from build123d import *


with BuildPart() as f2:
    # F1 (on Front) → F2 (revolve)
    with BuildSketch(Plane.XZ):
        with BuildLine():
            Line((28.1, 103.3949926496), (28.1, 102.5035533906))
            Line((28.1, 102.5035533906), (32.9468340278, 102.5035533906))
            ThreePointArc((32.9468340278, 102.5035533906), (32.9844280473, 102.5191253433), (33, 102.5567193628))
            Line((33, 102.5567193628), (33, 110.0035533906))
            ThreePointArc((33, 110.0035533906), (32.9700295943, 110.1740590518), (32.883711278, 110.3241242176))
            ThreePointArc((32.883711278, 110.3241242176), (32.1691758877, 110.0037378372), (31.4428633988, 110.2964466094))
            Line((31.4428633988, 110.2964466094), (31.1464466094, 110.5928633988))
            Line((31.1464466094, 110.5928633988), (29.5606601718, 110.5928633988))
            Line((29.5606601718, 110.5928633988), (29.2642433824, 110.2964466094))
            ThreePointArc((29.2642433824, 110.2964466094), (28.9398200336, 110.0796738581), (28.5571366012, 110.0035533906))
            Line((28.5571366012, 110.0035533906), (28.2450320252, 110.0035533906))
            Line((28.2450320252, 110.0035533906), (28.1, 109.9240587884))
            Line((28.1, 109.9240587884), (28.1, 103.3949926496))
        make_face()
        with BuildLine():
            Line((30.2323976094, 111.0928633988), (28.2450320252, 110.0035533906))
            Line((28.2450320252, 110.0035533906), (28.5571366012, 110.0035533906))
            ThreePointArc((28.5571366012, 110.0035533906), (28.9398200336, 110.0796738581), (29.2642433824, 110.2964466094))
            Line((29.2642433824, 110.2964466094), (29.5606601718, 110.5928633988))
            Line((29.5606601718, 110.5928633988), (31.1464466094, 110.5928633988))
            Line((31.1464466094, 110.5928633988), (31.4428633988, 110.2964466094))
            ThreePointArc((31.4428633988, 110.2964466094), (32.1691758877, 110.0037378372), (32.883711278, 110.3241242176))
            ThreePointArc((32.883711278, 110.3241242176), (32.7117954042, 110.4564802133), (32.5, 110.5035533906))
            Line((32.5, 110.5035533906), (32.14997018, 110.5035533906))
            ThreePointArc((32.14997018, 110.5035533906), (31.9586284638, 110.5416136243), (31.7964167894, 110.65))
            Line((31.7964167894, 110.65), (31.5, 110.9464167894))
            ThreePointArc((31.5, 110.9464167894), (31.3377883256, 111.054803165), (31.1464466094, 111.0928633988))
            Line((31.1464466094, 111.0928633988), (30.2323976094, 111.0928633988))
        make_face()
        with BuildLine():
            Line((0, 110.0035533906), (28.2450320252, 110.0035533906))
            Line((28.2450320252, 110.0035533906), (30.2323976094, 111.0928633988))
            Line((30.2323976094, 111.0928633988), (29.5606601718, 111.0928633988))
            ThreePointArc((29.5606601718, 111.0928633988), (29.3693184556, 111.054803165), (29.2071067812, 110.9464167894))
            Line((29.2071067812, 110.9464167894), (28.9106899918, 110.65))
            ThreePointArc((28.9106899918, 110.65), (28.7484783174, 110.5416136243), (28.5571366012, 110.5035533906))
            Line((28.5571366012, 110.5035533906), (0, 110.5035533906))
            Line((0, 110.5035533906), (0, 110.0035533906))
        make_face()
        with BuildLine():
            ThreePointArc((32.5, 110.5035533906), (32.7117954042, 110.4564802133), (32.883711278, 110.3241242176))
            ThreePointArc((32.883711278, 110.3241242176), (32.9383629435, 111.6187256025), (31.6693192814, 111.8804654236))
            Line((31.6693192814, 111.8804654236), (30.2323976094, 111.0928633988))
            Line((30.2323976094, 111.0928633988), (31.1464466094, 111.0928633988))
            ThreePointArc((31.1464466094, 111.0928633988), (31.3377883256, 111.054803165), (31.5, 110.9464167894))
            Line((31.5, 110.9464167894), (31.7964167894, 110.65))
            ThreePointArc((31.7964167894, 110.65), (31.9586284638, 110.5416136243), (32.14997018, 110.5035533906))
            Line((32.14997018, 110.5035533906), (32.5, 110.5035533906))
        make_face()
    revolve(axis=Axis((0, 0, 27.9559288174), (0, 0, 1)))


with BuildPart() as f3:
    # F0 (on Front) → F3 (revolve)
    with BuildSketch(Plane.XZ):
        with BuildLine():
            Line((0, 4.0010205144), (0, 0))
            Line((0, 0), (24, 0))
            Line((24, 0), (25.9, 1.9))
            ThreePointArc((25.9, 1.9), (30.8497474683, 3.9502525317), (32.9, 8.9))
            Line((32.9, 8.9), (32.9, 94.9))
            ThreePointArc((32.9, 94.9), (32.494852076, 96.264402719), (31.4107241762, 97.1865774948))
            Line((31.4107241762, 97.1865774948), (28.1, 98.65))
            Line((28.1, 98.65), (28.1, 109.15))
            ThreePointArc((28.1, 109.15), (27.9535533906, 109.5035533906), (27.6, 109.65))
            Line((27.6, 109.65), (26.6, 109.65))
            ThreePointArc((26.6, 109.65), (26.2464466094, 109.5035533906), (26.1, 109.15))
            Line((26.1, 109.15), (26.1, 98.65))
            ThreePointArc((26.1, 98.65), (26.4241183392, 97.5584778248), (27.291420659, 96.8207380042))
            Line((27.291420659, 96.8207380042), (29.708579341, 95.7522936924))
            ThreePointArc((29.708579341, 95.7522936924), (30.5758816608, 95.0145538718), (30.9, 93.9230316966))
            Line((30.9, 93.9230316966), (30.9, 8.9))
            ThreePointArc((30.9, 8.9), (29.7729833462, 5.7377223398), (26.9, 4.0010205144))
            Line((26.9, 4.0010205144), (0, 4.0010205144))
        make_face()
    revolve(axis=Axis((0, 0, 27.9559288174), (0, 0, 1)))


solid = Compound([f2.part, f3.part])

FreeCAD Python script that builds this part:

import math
import FreeCAD as App
import Part
import Sketcher

V = App.Vector
Q = App.Units.Quantity

doc = App.newDocument("Part")
body = doc.addObject("PartDesign::Body", "Body")

# Sketch on XZ plane
sketch1 = body.newObject("Sketcher::SketchObject", "Sketch")
sketch1.AttachmentSupport = (doc.getObject("XZ_Plane"), [""])
sketch1.MapMode = "FlatFace"
sketch1.addGeometry([
    Part.LineSegment(V(28.1, 102.503553, 0), V(32.946834, 102.503553, 0)),  # 0
    Part.ArcOfCircle(Part.Circle(V(32.946834, 102.556719, 0), V(0, 0, 1), 0.053166), math.radians(-90), math.radians(0)),  # 1
    Part.LineSegment(V(33, 102.556719, 0), V(33, 110.003553, 0)),  # 2
    Part.ArcOfCircle(Part.Circle(V(32.5, 110.003553, 0), V(0, 0, 1), 0.5), math.radians(0), math.radians(39.877003)),  # 3
    Part.ArcOfCircle(Part.Circle(V(32.14997, 111.003553, 0), V(0, 0, 1), 1), math.radians(-42.799053), math.radians(118.727922)),  # 4
    Part.LineSegment(V(31.669319, 111.880465, 0), V(30.232398, 111.092863, 0)),  # 5
    Part.LineSegment(V(30.232398, 111.092863, 0), V(29.56066, 111.092863, 0)),  # 6
    Part.ArcOfCircle(Part.Circle(V(29.56066, 110.592863, 0), V(0, 0, 1), 0.5), math.radians(90), math.radians(135)),  # 7
    Part.LineSegment(V(29.207107, 110.946417, 0), V(28.91069, 110.65, 0)),  # 8
    Part.ArcOfCircle(Part.Circle(V(28.557137, 111.003553, 0), V(0, 0, 1), 0.5), math.radians(-90), math.radians(-45)),  # 9
    Part.LineSegment(V(28.557137, 110.503553, 0), V(0, 110.503553, 0)),  # 10
    Part.LineSegment(V(0, 110.503553, 0), V(0, 110.003553, 0)),  # 11
    Part.LineSegment(V(0, 110.003553, 0), V(28.245032, 110.003553, 0)),  # 12
    Part.LineSegment(V(28.245032, 110.003553, 0), V(28.1, 109.924059, 0)),  # 13
    Part.LineSegment(V(28.1, 109.924059, 0), V(28.1, 102.503553, 0)),  # 14
], False)
sketch1.addConstraint([
    Sketcher.Constraint("Coincident", 0, 2, 1, 1),
    Sketcher.Constraint("Coincident", 1, 2, 2, 1),
    Sketcher.Constraint("Coincident", 2, 2, 3, 1),
    Sketcher.Constraint("Coincident", 3, 2, 4, 1),
    Sketcher.Constraint("Coincident", 4, 2, 5, 1),
    Sketcher.Constraint("Coincident", 5, 2, 6, 1),
    Sketcher.Constraint("Coincident", 6, 2, 7, 1),
    Sketcher.Constraint("Coincident", 7, 2, 8, 1),
    Sketcher.Constraint("Coincident", 8, 2, 9, 2),
    Sketcher.Constraint("Coincident", 9, 1, 10, 1),
    Sketcher.Constraint("Coincident", 10, 2, 11, 1),
    Sketcher.Constraint("Coincident", 11, 2, 12, 1),
    Sketcher.Constraint("Coincident", 12, 2, 13, 1),
    Sketcher.Constraint("Coincident", 13, 2, 14, 1),
    Sketcher.Constraint("Coincident", 14, 2, 0, 1),
    Sketcher.Constraint("Horizontal", 0),
    Sketcher.Constraint("Vertical", 2),
    Sketcher.Constraint("Horizontal", 6),
    Sketcher.Constraint("Horizontal", 10),
    Sketcher.Constraint("Vertical", 11),
    Sketcher.Constraint("Horizontal", 12),
    Sketcher.Constraint("Vertical", 14),
    Sketcher.Constraint("PointOnObject", 10, 2, -2),
    Sketcher.Constraint("Radius", 4, 1.0),
    Sketcher.Constraint("Radius", 3, 0.5),
    Sketcher.Constraint("Radius", 7, 0.5),
    Sketcher.Constraint("Radius", 9, 0.5),
    Sketcher.Constraint("DistanceY", 11, 2, 11, 1, 0.5),
    Sketcher.Constraint("DistanceX", -1, 1, 1, 2, 33.0),
    Sketcher.Constraint("DistanceY", 3, 3, 4, 3, 1.0),
    Sketcher.Constraint("DistanceY", 3, 3, 9, 3, 1.0),
    Sketcher.Constraint("DistanceY", 2, 2, 4, 3, 1.0),
    Sketcher.Constraint("DistanceX", -1, 1, 13, 2, 28.1),
    Sketcher.Constraint("DistanceY", 0, 2, 3, 3, 7.5),
    Sketcher.Constraint("DistanceY", -1, 1, 8, 2, 110.65),
    Sketcher.Constraint("Radius", 1, 0.053166),
    Sketcher.Constraint("Distance", 13, 0.165389),
    Sketcher.Constraint("DistanceX", 0, 1, 0, 2, 4.846834),
    Sketcher.Constraint("DistanceX", 6, 2, 6, 1, 0.671737),
    Sketcher.Constraint("DistanceX", 10, 2, 10, 1, 28.557137),
    Sketcher.Constraint("DistanceX", 12, 1, 12, 2, 28.245032),
    Sketcher.Constraint("DistanceY", 2, 1, 2, 2, 7.446834),
    Sketcher.Constraint("DistanceY", -1, 1, 1, 3, 102.556719),
    Sketcher.Constraint("DistanceX", -1, 1, 4, 3, 32.14997),
    Sketcher.Constraint("DistanceX", -1, 1, 7, 3, 29.56066),
    Sketcher.Constraint("DistanceX", -1, 1, 4, 2, 31.669319),
    Sketcher.Constraint("DistanceX", -1, 1, 6, 2, 29.56066),
    Sketcher.Constraint("DistanceX", -1, 1, 8, 2, 28.91069),
    Sketcher.Constraint("DistanceY", 7, 3, 4, 3, 0.41069),
    Sketcher.Constraint("DistanceX", 9, 3, 7, 2, 0.64997),
])
revolution = body.newObject("PartDesign::Revolution", "Revolution")
revolution.Profile = sketch1
revolution.ReferenceAxis = (sketch1, ["V_Axis"])
revolution.Angle = 360
body2 = doc.addObject("PartDesign::Body", "Body001")

# Sketch on XZ plane
sketch2 = body2.newObject("Sketcher::SketchObject", "Sketch001")
sketch2.AttachmentSupport = (doc.getObject("XZ_Plane001"), [""])
sketch2.MapMode = "FlatFace"
sketch2.addGeometry([
    Part.LineSegment(V(0, 4, 0), V(0, 0, 0)),  # 0
    Part.LineSegment(V(0, 0, 0), V(24, 0, 0)),  # 1
    Part.LineSegment(V(24, 0, 0), V(25.9, 1.9, 0)),  # 2
    Part.ArcOfCircle(Part.Circle(V(25.9, 8.9, 0), V(0, 0, 1), 7), math.radians(-90), math.radians(0)),  # 3
    Part.LineSegment(V(32.9, 8.9, 0), V(32.9, 94.9, 0)),  # 4
    Part.ArcOfCircle(Part.Circle(V(30.4, 94.9, 0), V(0, 0, 1), 2.5), math.radians(0), math.radians(66)),  # 5
    Part.LineSegment(V(31.4, 97.2, 0), V(28.1, 98.7, 0)),  # 6
    Part.LineSegment(V(28.1, 98.7, 0), V(28.1, 109.2, 0)),  # 7
    Part.ArcOfCircle(Part.Circle(V(27.6, 109.2, 0), V(0, 0, 1), 0.5), math.radians(0), math.radians(90)),  # 8
    Part.LineSegment(V(27.6, 109.7, 0), V(26.6, 109.7, 0)),  # 9
    Part.ArcOfCircle(Part.Circle(V(26.6, 109.2, 0), V(0, 0, 1), 0.5), math.radians(90), math.radians(180)),  # 10
    Part.LineSegment(V(26.1, 109.2, 0), V(26.1, 98.7, 0)),  # 11
    Part.ArcOfCircle(Part.Circle(V(28.1, 98.7, 0), V(0, 0, 1), 2), math.radians(180), math.radians(246)),  # 12
    Part.LineSegment(V(27.3, 96.8, 0), V(29.7, 95.8, 0)),  # 13
    Part.ArcOfCircle(Part.Circle(V(28.9, 93.9, 0), V(0, 0, 1), 2), math.radians(0), math.radians(66)),  # 14
    Part.LineSegment(V(30.9, 93.9, 0), V(30.9, 8.9, 0)),  # 15
    Part.ArcOfCircle(Part.Circle(V(25.9, 8.9, 0), V(0, 0, 1), 5), math.radians(-78), math.radians(0)),  # 16
    Part.LineSegment(V(26.9, 4, 0), V(0, 4, 0)),  # 17
], False)
sketch2.addConstraint([
    Sketcher.Constraint("Coincident", 0, 2, 1, 1),
    Sketcher.Constraint("Coincident", 1, 2, 2, 1),
    Sketcher.Constraint("Coincident", 2, 2, 3, 1),
    Sketcher.Constraint("Tangent", 3, 2, 4, 1),
    Sketcher.Constraint("Tangent", 4, 2, 5, 1),
    Sketcher.Constraint("Tangent", 5, 2, 6, 1),
    Sketcher.Constraint("Coincident", 6, 2, 7, 1),
    Sketcher.Constraint("Tangent", 7, 2, 8, 1),
    Sketcher.Constraint("Tangent", 8, 2, 9, 1),
    Sketcher.Constraint("Tangent", 9, 2, 10, 1),
    Sketcher.Constraint("Tangent", 10, 2, 11, 1),
    Sketcher.Constraint("Tangent", 11, 2, 12, 1),
    Sketcher.Constraint("Tangent", 12, 2, 13, 1),
    Sketcher.Constraint("Tangent", 13, 2, 14, 2),
    Sketcher.Constraint("Tangent", 14, 1, 15, 1),
    Sketcher.Constraint("Tangent", 15, 2, 16, 2),
    Sketcher.Constraint("Coincident", 16, 1, 17, 1),
    Sketcher.Constraint("Coincident", 17, 2, 0, 1),
    Sketcher.Constraint("Vertical", 0),
    Sketcher.Constraint("Horizontal", 1),
    Sketcher.Constraint("Vertical", 4),
    Sketcher.Constraint("Vertical", 7),
    Sketcher.Constraint("Horizontal", 9),
    Sketcher.Constraint("Vertical", 11),
    Sketcher.Constraint("Vertical", 15),
    Sketcher.Constraint("Horizontal", 17),
    Sketcher.Constraint("Coincident", 0, 2, -1, 1),
    Sketcher.Constraint("Coincident", 16, 3, 3, 3),
    Sketcher.Constraint("Coincident", 6, 2, 12, 3),
    Sketcher.Constraint("Equal", 8, 10),
    Sketcher.Constraint("Equal", 12, 14),
    Sketcher.Constraint("Parallel", 6, 13),
    Sketcher.Constraint("Vertical", 16, 3, 2, 2),
    Sketcher.Constraint("Radius", 3, 7.0),
    Sketcher.Constraint("Radius", 12, 2.0),
    Sketcher.Constraint("Radius", 16, 5.0),
    Sketcher.Constraint("Radius", 5, 2.5),
    Sketcher.Constraint("Radius", 8, 0.5),
    Sketcher.Constraint("DistanceX", 1, 1, 1, 2, 24.0),
    Sketcher.Constraint("DistanceY", 4, 1, 4, 2, 86.0),
    Sketcher.Constraint("Angle", 2, Q("45 deg")),
    Sketcher.Constraint("DistanceX", 17, 2, 17, 1, 26.9),
    Sketcher.Constraint("DistanceY", 7, 1, 7, 2, 10.5),
    Sketcher.Constraint("DistanceX", 2, 2, 16, 1, 1.0),
    Sketcher.Constraint("DistanceX", -1, 1, 8, 3, 27.6),
    Sketcher.Constraint("DistanceY", -1, 1, 8, 3, 109.15),
])
revolution2 = body2.newObject("PartDesign::Revolution", "Revolution001")
revolution2.Profile = sketch2
revolution2.ReferenceAxis = (sketch2, ["V_Axis"])
revolution2.Angle = 360

doc.recompute()
